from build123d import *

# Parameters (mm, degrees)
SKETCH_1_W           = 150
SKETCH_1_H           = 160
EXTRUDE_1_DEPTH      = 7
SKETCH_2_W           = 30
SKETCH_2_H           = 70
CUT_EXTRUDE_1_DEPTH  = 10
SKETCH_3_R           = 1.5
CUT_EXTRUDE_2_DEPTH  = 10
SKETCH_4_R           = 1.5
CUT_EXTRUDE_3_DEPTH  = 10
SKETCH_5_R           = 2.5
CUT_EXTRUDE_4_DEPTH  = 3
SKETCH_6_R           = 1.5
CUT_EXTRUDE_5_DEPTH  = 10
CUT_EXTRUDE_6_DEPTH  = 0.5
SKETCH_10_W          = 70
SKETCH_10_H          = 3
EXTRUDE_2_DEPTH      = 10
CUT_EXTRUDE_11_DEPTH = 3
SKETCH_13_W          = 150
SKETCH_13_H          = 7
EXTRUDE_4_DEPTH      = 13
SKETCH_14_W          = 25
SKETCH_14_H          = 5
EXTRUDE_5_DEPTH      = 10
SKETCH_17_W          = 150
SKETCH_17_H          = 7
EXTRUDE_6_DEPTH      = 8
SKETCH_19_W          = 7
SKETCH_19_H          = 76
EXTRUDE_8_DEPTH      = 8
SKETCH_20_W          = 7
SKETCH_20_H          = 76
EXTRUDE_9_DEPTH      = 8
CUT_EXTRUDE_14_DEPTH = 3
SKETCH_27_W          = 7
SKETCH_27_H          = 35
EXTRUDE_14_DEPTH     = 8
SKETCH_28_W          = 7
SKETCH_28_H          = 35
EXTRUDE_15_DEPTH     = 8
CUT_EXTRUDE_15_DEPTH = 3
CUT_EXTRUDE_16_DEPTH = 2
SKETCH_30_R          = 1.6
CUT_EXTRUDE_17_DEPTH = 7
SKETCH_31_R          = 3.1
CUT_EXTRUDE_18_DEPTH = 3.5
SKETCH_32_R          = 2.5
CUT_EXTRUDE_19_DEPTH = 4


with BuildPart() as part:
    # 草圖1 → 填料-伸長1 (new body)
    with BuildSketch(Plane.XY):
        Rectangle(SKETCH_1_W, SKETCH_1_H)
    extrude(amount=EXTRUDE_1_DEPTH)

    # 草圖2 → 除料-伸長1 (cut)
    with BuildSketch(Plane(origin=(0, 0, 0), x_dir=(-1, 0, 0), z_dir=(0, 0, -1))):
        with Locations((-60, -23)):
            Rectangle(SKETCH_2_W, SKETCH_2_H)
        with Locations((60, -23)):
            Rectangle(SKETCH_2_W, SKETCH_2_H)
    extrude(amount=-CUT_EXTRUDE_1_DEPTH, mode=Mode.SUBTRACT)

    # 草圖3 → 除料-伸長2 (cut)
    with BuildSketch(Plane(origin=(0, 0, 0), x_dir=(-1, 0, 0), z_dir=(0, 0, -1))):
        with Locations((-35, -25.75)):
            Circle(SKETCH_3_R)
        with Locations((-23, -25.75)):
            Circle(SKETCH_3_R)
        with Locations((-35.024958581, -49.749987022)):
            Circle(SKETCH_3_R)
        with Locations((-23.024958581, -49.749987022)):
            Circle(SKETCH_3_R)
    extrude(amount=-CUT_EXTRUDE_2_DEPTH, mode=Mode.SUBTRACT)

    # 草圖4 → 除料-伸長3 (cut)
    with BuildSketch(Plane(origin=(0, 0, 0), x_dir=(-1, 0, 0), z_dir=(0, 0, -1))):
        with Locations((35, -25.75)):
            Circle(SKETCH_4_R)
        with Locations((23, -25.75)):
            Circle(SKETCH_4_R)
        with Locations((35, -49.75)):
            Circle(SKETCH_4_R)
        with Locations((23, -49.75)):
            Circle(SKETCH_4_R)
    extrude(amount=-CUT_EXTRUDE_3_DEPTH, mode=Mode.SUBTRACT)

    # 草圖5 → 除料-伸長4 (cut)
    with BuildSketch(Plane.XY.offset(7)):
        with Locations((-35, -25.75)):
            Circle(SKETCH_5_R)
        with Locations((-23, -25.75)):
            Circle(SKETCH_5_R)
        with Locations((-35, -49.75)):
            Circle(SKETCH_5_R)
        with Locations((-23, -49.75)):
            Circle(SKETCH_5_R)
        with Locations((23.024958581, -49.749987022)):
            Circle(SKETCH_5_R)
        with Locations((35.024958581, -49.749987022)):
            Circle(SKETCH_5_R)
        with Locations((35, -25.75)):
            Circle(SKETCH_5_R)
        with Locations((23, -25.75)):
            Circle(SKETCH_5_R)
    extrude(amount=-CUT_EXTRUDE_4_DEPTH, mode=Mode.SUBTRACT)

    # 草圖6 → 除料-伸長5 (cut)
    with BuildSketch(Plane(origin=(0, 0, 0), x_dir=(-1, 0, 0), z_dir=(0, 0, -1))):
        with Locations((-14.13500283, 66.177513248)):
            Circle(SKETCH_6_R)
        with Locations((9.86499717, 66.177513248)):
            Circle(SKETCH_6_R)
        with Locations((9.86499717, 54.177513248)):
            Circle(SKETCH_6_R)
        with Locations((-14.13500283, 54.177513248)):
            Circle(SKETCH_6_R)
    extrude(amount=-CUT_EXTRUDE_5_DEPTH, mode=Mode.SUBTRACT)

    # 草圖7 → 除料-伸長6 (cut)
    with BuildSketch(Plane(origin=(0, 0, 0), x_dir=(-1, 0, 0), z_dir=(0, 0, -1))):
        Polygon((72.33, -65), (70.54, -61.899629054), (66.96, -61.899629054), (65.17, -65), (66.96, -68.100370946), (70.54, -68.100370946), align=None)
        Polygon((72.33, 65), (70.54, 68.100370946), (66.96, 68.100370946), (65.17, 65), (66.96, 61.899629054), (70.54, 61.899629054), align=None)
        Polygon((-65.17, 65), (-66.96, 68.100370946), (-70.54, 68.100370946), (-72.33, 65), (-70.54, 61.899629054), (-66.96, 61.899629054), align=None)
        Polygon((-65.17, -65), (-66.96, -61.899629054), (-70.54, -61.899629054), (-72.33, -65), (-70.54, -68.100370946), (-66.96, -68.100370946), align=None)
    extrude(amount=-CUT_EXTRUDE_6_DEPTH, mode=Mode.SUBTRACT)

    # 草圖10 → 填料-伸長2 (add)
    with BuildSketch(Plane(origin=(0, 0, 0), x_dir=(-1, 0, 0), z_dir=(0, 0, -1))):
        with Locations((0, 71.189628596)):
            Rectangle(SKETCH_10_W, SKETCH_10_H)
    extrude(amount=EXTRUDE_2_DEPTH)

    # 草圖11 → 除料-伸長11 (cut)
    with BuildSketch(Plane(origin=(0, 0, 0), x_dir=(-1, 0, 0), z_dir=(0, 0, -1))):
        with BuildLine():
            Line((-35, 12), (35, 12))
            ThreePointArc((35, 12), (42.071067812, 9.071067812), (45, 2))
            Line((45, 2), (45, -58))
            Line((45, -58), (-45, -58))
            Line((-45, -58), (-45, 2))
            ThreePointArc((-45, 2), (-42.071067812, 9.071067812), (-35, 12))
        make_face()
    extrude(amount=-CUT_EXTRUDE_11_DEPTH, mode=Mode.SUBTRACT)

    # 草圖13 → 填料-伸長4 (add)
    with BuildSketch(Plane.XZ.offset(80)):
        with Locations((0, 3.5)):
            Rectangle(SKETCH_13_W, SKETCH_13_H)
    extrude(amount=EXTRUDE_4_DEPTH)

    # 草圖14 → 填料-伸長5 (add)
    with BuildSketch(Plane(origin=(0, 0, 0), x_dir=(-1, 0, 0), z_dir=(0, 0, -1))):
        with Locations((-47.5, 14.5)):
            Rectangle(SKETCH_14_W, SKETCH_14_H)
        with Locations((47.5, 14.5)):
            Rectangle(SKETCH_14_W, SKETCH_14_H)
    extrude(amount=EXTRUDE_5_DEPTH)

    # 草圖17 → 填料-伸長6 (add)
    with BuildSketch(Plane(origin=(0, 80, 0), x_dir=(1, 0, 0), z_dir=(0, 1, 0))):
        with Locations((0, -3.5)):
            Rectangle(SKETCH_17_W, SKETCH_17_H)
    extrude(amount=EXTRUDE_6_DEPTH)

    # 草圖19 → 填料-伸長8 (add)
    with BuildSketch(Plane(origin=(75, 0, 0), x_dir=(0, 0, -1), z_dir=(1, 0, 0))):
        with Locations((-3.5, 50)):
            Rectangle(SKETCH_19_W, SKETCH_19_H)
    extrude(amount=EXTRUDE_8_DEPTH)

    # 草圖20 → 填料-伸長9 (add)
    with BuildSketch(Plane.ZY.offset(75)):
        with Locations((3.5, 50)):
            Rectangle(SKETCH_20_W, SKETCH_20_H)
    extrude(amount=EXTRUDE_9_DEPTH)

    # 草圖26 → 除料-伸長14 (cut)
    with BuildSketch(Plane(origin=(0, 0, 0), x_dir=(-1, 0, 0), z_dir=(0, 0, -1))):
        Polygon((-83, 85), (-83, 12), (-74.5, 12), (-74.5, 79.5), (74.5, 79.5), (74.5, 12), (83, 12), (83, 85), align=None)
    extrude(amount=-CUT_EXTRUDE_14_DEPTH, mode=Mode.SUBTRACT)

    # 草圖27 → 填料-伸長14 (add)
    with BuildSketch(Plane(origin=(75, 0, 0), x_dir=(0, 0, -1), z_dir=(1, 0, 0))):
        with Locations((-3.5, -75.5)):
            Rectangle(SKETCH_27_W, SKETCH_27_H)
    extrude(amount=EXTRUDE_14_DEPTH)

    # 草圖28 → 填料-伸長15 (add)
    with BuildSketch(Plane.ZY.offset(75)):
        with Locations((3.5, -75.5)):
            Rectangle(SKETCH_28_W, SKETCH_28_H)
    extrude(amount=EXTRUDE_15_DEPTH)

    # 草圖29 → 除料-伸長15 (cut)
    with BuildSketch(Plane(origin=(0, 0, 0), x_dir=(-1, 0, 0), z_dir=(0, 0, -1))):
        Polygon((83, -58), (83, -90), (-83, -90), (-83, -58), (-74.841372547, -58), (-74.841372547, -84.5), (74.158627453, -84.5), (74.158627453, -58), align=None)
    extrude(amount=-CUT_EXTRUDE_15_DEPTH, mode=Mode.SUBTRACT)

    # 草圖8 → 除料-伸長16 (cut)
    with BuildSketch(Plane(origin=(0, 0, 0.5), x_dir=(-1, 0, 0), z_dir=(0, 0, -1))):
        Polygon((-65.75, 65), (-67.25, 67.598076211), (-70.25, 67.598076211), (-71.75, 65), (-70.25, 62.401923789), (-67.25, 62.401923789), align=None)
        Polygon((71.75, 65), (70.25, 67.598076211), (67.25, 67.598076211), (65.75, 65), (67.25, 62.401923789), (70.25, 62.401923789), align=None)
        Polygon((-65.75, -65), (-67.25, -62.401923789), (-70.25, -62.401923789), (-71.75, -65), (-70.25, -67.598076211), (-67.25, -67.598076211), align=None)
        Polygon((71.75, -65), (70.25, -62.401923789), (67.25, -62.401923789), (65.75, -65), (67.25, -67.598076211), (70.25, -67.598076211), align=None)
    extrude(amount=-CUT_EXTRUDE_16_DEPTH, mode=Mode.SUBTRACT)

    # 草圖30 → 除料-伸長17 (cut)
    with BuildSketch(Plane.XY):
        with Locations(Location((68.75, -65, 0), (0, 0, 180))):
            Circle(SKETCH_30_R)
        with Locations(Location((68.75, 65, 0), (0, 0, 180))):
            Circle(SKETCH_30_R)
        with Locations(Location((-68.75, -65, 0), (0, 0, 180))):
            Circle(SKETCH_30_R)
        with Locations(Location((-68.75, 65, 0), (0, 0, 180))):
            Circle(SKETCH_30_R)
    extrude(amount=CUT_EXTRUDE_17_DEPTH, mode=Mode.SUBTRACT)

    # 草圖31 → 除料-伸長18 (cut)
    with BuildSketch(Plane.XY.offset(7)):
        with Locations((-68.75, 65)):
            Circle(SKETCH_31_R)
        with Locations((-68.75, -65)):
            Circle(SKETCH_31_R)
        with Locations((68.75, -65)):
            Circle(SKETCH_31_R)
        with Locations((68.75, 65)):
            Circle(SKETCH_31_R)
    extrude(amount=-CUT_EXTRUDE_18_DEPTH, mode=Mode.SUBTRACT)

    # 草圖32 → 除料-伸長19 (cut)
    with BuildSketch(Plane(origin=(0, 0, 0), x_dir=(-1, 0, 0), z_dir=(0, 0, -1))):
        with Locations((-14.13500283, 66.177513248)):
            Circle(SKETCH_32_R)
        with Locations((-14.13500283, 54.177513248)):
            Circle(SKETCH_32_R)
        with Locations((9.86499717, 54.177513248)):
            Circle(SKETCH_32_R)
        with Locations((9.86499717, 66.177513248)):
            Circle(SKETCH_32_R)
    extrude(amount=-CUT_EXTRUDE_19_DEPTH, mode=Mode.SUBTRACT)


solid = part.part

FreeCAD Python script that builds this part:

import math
import FreeCAD as App
import Part
import Sketcher

V = App.Vector
Q = App.Units.Quantity

doc = App.newDocument("Part")
body = doc.addObject("PartDesign::Body", "Body")

sketch1 = body.newObject("Sketcher::SketchObject", "Sketch")
sketch1.AttachmentSupport = (doc.getObject("XY_Plane"), [""])
sketch1.MapMode = "FlatFace"
sketch1.addGeometry([
    Part.LineSegment(V(-75, 80, 0), V(-75, -80, 0)),
    Part.LineSegment(V(-75, -80, 0), V(75, -80, 0)),
    Part.LineSegment(V(75, -80, 0), V(75, 80, 0)),
    Part.LineSegment(V(75, 80, 0), V(-75, 80, 0)),
], False)
sketch1.addConstraint([
    Sketcher.Constraint("Coincident", 0, 2, 1, 1),
    Sketcher.Constraint("Coincident", 1, 2, 2, 1),
    Sketcher.Constraint("Coincident", 2, 2, 3, 1),
    Sketcher.Constraint("Coincident", 3, 2, 0, 1),
    Sketcher.Constraint("Vertical", 0),
    Sketcher.Constraint("Horizontal", 1),
    Sketcher.Constraint("Vertical", 2),
    Sketcher.Constraint("Horizontal", 3),
    Sketcher.Constraint("Symmetric", 0, 2, 2, 2, -1, 1),
    Sketcher.Constraint("DistanceX", 1, 1, 1, 2, 150.0),
    Sketcher.Constraint("DistanceY", 0, 2, 0, 1, 160.0),
])
pad1 = body.newObject("PartDesign::Pad", "Pad")
pad1.Profile = sketch1
pad1.Length = 7

sketch2 = body.newObject("Sketcher::SketchObject", "Sketch001")
sketch2.AttachmentSupport = (doc.getObject("XY_Plane"), [""])
sketch2.MapMode = "FlatFace"
sketch2.addGeometry([
    Part.LineSegment(V(75, 12, 0), V(75, -58, 0)),
    Part.LineSegment(V(75, -58, 0), V(45, -58, 0)),
    Part.LineSegment(V(45, -58, 0), V(45, 12, 0)),
    Part.LineSegment(V(45, 12, 0), V(75, 12, 0)),
    Part.LineSegment(V(-45, 12, 0), V(-45, -58, 0)),
    Part.LineSegment(V(-45, -58, 0), V(-75, -58, 0)),
    Part.LineSegment(V(-75, -58, 0), V(-75, 12, 0)),
    Part.LineSegment(V(-75, 12, 0), V(-45, 12, 0)),
], False)
sketch2.addConstraint([
    Sketcher.Constraint("Coincident", 0, 2, 1, 1),
    Sketcher.Constraint("Coincident", 1, 2, 2, 1),
    Sketcher.Constraint("Coincident", 2, 2, 3, 1),
    Sketcher.Constraint("Coincident", 3, 2, 0, 1),
    Sketcher.Constraint("Coincident", 4, 2, 5, 1),
    Sketcher.Constraint("Coincident", 5, 2, 6, 1),
    Sketcher.Constraint("Coincident", 6, 2, 7, 1),
    Sketcher.Constraint("Coincident", 7, 2, 4, 1),
    Sketcher.Constraint("Vertical", 0),
    Sketcher.Constraint("Horizontal", 1),
    Sketcher.Constraint("Vertical", 2),
    Sketcher.Constraint("Horizontal", 3),
    Sketcher.Constraint("Vertical", 4),
    Sketcher.Constraint("Horizontal", 5),
    Sketcher.Constraint("Vertical", 6),
    Sketcher.Constraint("Horizontal", 7),
    Sketcher.Constraint("Symmetric", 1, 2, 4, 2, -2),
    Sketcher.Constraint("Symmetric", 3, 2, 6, 2, -2),
    Sketcher.Constraint("DistanceX", 1, 2, 1, 1, 30.0),
    Sketcher.Constraint("DistanceY", 0, 2, 0, 1, 70.0),
    Sketcher.Constraint("DistanceX", -1, 1, 0, 2, 75.0),
    Sketcher.Constraint("DistanceY", 0, 2, -1, 1, 58.0),
])
pocket1 = body.newObject("PartDesign::Pocket", "Pocket")
pocket1.Profile = sketch2
pocket1.Length = 10
pocket1.Reversed = True

sketch3 = body.newObject("Sketcher::SketchObject", "Sketch002")
sketch3.AttachmentSupport = (doc.getObject("XY_Plane"), [""])
sketch3.MapMode = "FlatFace"
sketch3.addGeometry([
    Part.Circle(V(35, -25.8, 0), V(0, 0, 1), 1.5),
    Part.Circle(V(23, -25.8, 0), V(0, 0, 1), 1.5),
    Part.Circle(V(35, -49.7, 0), V(0, 0, 1), 1.5),
    Part.Circle(V(23, -49.7, 0), V(0, 0, 1), 1.5),
], False)
sketch3.addConstraint([
    Sketcher.Constraint("Equal", 0, 1),
    Sketcher.Constraint("Equal", 1, 2),
    Sketcher.Constraint("Equal", 2, 3),
    Sketcher.Constraint("Horizontal", 0, 3, 1, 3),
    Sketcher.Constraint("Horizontal", 2, 3, 3, 3),
    Sketcher.Constraint("Diameter", 0, 3.0),
    Sketcher.Constraint("DistanceX", -1, 1, 0, 3, 35.0),
    Sketcher.Constraint("DistanceX", -1, 1, 1, 3, 23.0),
    Sketcher.Constraint("DistanceX", 3, 3, 2, 3, 12.0),
    Sketcher.Constraint("DistanceY", 0, 3, -1, 1, 25.75),
    Sketcher.Constraint("DistanceX", -1, 1, 2, 3, 35.024959),
    Sketcher.Constraint("DistanceY", 2, 3, -1, 1, 49.749987),
])
pocket2 = body.newObject("PartDesign::Pocket", "Pocket001")
pocket2.Profile = sketch3
pocket2.Length = 10
pocket2.Reversed = True

sketch4 = body.newObject("Sketcher::SketchObject", "Sketch003")
sketch4.AttachmentSupport = (doc.getObject("XY_Plane"), [""])
sketch4.MapMode = "FlatFace"
sketch4.addGeometry([
    Part.Circle(V(-35, -25.8, 0), V(0, 0, 1), 1.5),
    Part.Circle(V(-23, -25.8, 0), V(0, 0, 1), 1.5),
    Part.Circle(V(-35, -49.8, 0), V(0, 0, 1), 1.5),
    Part.Circle(V(-23, -49.8, 0), V(0, 0, 1), 1.5),
], False)
sketch4.addConstraint([
    Sketcher.Constraint("Equal", 0, 1),
    Sketcher.Constraint("Equal", 1, 2),
    Sketcher.Constraint("Equal", 2, 3),
    Sketcher.Constraint("Horizontal", 0, 3, 1, 3),
    Sketcher.Constraint("Horizontal", 2, 3, 3, 3),
    Sketcher.Constraint("Vertical", 0, 3, 2, 3),
    Sketcher.Constraint("Vertical", 1, 3, 3, 3),
    Sketcher.Constraint("Diameter", 0, 3.0),
    Sketcher.Constraint("DistanceX", 0, 3, -1, 1, 35.0),
    Sketcher.Constraint("DistanceX", 1, 3, -1, 1, 23.0),
    Sketcher.Constraint("DistanceY", 2, 3, 0, 3, 24.0),
    Sketcher.Constraint("DistanceY", 0, 3, -1, 1, 25.75),
])
pocket3 = body.newObject("PartDesign::Pocket", "Pocket002")
pocket3.Profile = sketch4
pocket3.Length = 10
pocket3.Reversed = True

sketch5 = body.newObject("Sketcher::SketchObject", "Sketch004")
sketch5.AttachmentSupport = (doc.getObject("XY_Plane"), [""])
sketch5.MapMode = "FlatFace"
sketch5.AttachmentOffset = App.Placement(V(0, 0, 7), App.Rotation())
sketch5.addGeometry([
    Part.Circle(V(-35, -25.8, 0), V(0, 0, 1), 2.5),
    Part.Circle(V(-23, -25.8, 0), V(0, 0, 1), 2.5),
    Part.Circle(V(-35, -49.8, 0), V(0, 0, 1), 2.5),
    Part.Circle(V(-23, -49.8, 0), V(0, 0, 1), 2.5),
    Part.Circle(V(23, -49.7, 0), V(0, 0, 1), 2.5),
    Part.Circle(V(35, -49.7, 0), V(0, 0, 1), 2.5),
    Part.Circle(V(35, -25.8, 0), V(0, 0, 1), 2.5),
    Part.Circle(V(23, -25.8, 0), V(0, 0, 1), 2.5),
], False)
sketch5.addConstraint([
    Sketcher.Constraint("Equal", 0, 1),
    Sketcher.Constraint("Equal", 1, 2),
    Sketcher.Constraint("Equal", 2, 3),
    Sketcher.Constraint("Equal", 3, 4),
    Sketcher.Constraint("Equal", 4, 5),
    Sketcher.Constraint("Equal", 5, 6),
    Sketcher.Constraint("Equal", 6, 7),
    Sketcher.Constraint("Symmetric", 0, 3, 6, 3, -2),
    Sketcher.Constraint("Symmetric", 1, 3, 7, 3, -2),
    Sketcher.Constraint("Horizontal", 0, 3, 1, 3),
    Sketcher.Constraint("Horizontal", 2, 3, 3, 3),
    Sketcher.Constraint("Horizontal", 4, 3, 5, 3),
    Sketcher.Constraint("Vertical", 0, 3, 2, 3),
    Sketcher.Constraint("Vertical", 1, 3, 3, 3),
    Sketcher.Constraint("Diameter", 0, 5.0),
    Sketcher.Constraint("DistanceX", 0, 3, -1, 1, 35.0),
    Sketcher.Constraint("DistanceX", 1, 3, -1, 1, 23.0),
    Sketcher.Constraint("DistanceY", 2, 3, 0, 3, 24.0),
    Sketcher.Constraint("DistanceX", 4, 3, 5, 3, 12.0),
    Sketcher.Constraint("DistanceY", 0, 3, -1, 1, 25.75),
    Sketcher.Constraint("DistanceX", -1, 1, 4, 3, 23.024959),
    Sketcher.Constraint("DistanceY", 4, 3, -1, 1, 49.749987),
])
pocket4 = body.newObject("PartDesign::Pocket", "Pocket003")
pocket4.Profile = sketch5
pocket4.Length = 3

sketch6 = body.newObject("Sketcher::SketchObject", "Sketch005")
sketch6.AttachmentSupport = (doc.getObject("XY_Plane"), [""])
sketch6.MapMode = "FlatFace"
sketch6.addGeometry([
    Part.Circle(V(14.1, 66.2, 0), V(0, 0, 1), 1.5),
    Part.Circle(V(-9.9, 66.2, 0), V(0, 0, 1), 1.5),
    Part.Circle(V(-9.9, 54.2, 0), V(0, 0, 1), 1.5),
    Part.Circle(V(14.1, 54.2, 0), V(0, 0, 1), 1.5),
], False)
sketch6.addConstraint([
    Sketcher.Constraint("Equal", 0, 1),
    Sketcher.Constraint("Equal", 1, 2),
    Sketcher.Constraint("Equal", 2, 3),
    Sketcher.Constraint("Horizontal", 0, 3, 1, 3),
    Sketcher.Constraint("Horizontal", 2, 3, 3, 3),
    Sketcher.Constraint("Vertical", 1, 3, 2, 3),
    Sketcher.Constraint("Vertical", 0, 3, 3, 3),
    Sketcher.Constraint("Diameter", 0, 3.0),
    Sketcher.Constraint("DistanceX", 1, 3, 0, 3, 24.0),
    Sketcher.Constraint("DistanceY", 2, 3, 1, 3, 12.0),
    Sketcher.Constraint("DistanceX", -1, 1, 0, 3, 14.135003),
    Sketcher.Constraint("DistanceY", -1, 1, 0, 3, 66.177513),
])
pocket5 = body.newObject("PartDesign::Pocket", "Pocket004")
pocket5.Profile = sketch6
pocket5.Length = 10
pocket5.Reversed = True

sketch7 = body.newObject("Sketcher::SketchObject", "Sketch006")
sketch7.AttachmentSupport = (doc.getObject("XY_Plane"), [""])
sketch7.MapMode = "FlatFace"
sketch7.addGeometry([
    Part.LineSegment(V(-72.3, -65, 0), V(-70.5, -61.9, 0)),
    Part.LineSegment(V(-70.5, -61.9, 0), V(-67, -61.9, 0)),
    Part.LineSegment(V(-67, -61.9, 0), V(-65.2, -65, 0)),
    Part.LineSegment(V(-65.2, -65, 0), V(-67, -68.1, 0)),
    Part.LineSegment(V(-67, -68.1, 0), V(-70.5, -68.1, 0)),
    Part.LineSegment(V(-70.5, -68.1, 0), V(-72.3, -65, 0)),
    Part.LineSegment(V(-72.3, 65, 0), V(-70.5, 68.1, 0)),
    Part.LineSegment(V(-70.5, 68.1, 0), V(-67, 68.1, 0)),
    Part.LineSegment(V(-67, 68.1, 0), V(-65.2, 65, 0)),
    Part.LineSegment(V(-65.2, 65, 0), V(-67, 61.9, 0)),
    Part.LineSegment(V(-67, 61.9, 0), V(-70.5, 61.9, 0)),
    Part.LineSegment(V(-70.5, 61.9, 0), V(-72.3, 65, 0)),
    Part.LineSegment(V(65.2, 65, 0), V(67, 68.1, 0)),
    Part.LineSegment(V(67, 68.1, 0), V(70.5, 68.1, 0)),
    Part.LineSegment(V(70.5, 68.1, 0), V(72.3, 65, 0)),
    Part.LineSegment(V(72.3, 65, 0), V(70.5, 61.9, 0)),
    Part.LineSegment(V(70.5, 61.9, 0), V(67, 61.9, 0)),
    Part.LineSegment(V(67, 61.9, 0), V(65.2, 65, 0)),
    Part.LineSegment(V(65.2, -65, 0), V(67, -61.9, 0)),
    Part.LineSegment(V(67, -61.9, 0), V(70.5, -61.9, 0)),
    Part.LineSegment(V(70.5, -61.9, 0), V(72.3, -65, 0)),
    Part.LineSegment(V(72.3, -65, 0), V(70.5, -68.1, 0)),
    Part.LineSegment(V(70.5, -68.1, 0), V(67, -68.1, 0)),
    Part.LineSegment(V(67, -68.1, 0), V(65.2, -65, 0)),
], False)
sketch7.addConstraint([
    Sketcher.Constraint("Coincident", 0, 2, 1, 1),
    Sketcher.Constraint("Coincident", 1, 2, 2, 1),
    Sketcher.Constraint("Coincident", 2, 2, 3, 1),
    Sketcher.Constraint("Coincident", 3, 2, 4, 1),
    Sketcher.Constraint("Coincident", 4, 2, 5, 1),
    Sketcher.Constraint("Coincident", 5, 2, 0, 1),
    Sketcher.Constraint("Coincident", 6, 2, 7, 1),
    Sketcher.Constraint("Coincident", 7, 2, 8, 1),
    Sketcher.Constraint("Coincident", 8, 2, 9, 1),
    Sketcher.Constraint("Coincident", 9, 2, 10, 1),
    Sketcher.Constraint("Coincident", 10, 2, 11, 1),
    Sketcher.Constraint("Coincident", 11, 2, 6, 1),
    Sketcher.Constraint("Coincident", 12, 2, 13, 1),
    Sketcher.Constraint("Coincident", 13, 2, 14, 1),
    Sketcher.Constraint("Coincident", 14, 2, 15, 1),
    Sketcher.Constraint("Coincident", 15, 2, 16, 1),
    Sketcher.Constraint("Coincident", 16, 2, 17, 1),
    Sketcher.Constraint("Coincident", 17, 2, 12, 1),
    Sketcher.Constraint("Coincident", 18, 2, 19, 1),
    Sketcher.Constraint("Coincident", 19, 2, 20, 1),
    Sketcher.Constraint("Coincident", 20, 2, 21, 1),
    Sketcher.Constraint("Coincident", 21, 2, 22, 1),
    Sketcher.Constraint("Coincident", 22, 2, 23, 1),
    Sketcher.Constraint("Coincident", 23, 2, 18, 1),
    Sketcher.Constraint("Horizontal", 1),
    Sketcher.Constraint("Horizontal", 4),
    Sketcher.Constraint("Horizontal", 7),
    Sketcher.Constraint("Horizontal", 10),
    Sketcher.Constraint("Horizontal", 13),
    Sketcher.Constraint("Horizontal", 16),
    Sketcher.Constraint("Horizontal", 19),
    Sketcher.Constraint("Horizontal", 22),
    Sketcher.Constraint("Symmetric", 3, 2, 12, 2, -1, 1),
    Sketcher.Constraint("Symmetric", 5, 2, 14, 2, -1, 1),
    Sketcher.Constraint("Symmetric", 0, 2, 15, 2, -1, 1),
    Sketcher.Constraint("Symmetric", 2, 2, 17, 2, -1, 1),
    Sketcher.Constraint("Symmetric", 9, 2, 18, 2, -1, 1),
    Sketcher.Constraint("Symmetric", 11, 2, 20, 2, -1, 1),
    Sketcher.Constraint("Symmetric", 6, 2, 21, 2, -1, 1),
    Sketcher.Constraint("Symmetric", 8, 2, 23, 2, -1, 1),
    Sketcher.Constraint("Symmetric", 7, 2, 12, 2, -2),
    Sketcher.Constraint("Symmetric", 11, 2, 14, 2, -2),
    Sketcher.Constraint("Symmetric", 10, 2, 15, 2, -2),
    Sketcher.Constraint("Symmetric", 8, 2, 17, 2, -2),
    Sketcher.Constraint("Parallel", 0, 3),
    Sketcher.Constraint("Parallel", 2, 5),
    Sketcher.Constraint("Parallel", 3, 6),
    Sketcher.Constraint("Parallel", 5, 8),
    Sketcher.Constraint("Parallel", 6, 9),
    Sketcher.Constraint("Parallel", 11, 14),
    Sketcher.Constraint("Parallel", 14, 17),
    Sketcher.Constraint("Parallel", 17, 20),
    Sketcher.Constraint("Parallel", 20, 23),
    Sketcher.Constraint("Horizontal", 2, 2, 5, 2),
    Sketcher.Constraint("Vertical", 1, 2, 3, 2),
    Sketcher.Constraint("Angle", 0, Q("60 deg")),
    Sketcher.Constraint("DistanceY", 2, 2, -1, 1, 65.0),
    Sketcher.Constraint("DistanceX", 1, 1, 1, 2, 3.58),
    Sketcher.Constraint("DistanceX", 6, 2, 12, 2, 137.5),
    Sketcher.Constraint("Distance", 0, 3.58),
])
pocket6 = body.newObject("PartDesign::Pocket", "Pocket005")
pocket6.Profile = sketch7
pocket6.Length = 0.5
pocket6.Reversed = True

sketch8 = body.newObject("Sketcher::SketchObject", "Sketch007")
sketch8.AttachmentSupport = (doc.getObject("XY_Plane"), [""])
sketch8.MapMode = "FlatFace"
sketch8.addGeometry([
    Part.LineSegment(V(35, 72.7, 0), V(35, 69.7, 0)),
    Part.LineSegment(V(35, 69.7, 0), V(-35, 69.7, 0)),
    Part.LineSegment(V(-35, 69.7, 0), V(-35, 72.7, 0)),
    Part.LineSegment(V(-35, 72.7, 0), V(35, 72.7, 0)),
], False)
sketch8.addConstraint([
    Sketcher.Constraint("Coincident", 0, 2, 1, 1),
    Sketcher.Constraint("Coincident", 1, 2, 2, 1),
    Sketcher.Constraint("Coincident", 2, 2, 3, 1),
    Sketcher.Constraint("Coincident", 3, 2, 0, 1),
    Sketcher.Constraint("Vertical", 0),
    Sketcher.Constraint("Horizontal", 1),
    Sketcher.Constraint("Vertical", 2),
    Sketcher.Constraint("Horizontal", 3),
    Sketcher.Constraint("DistanceX", 1, 2, 1, 1, 70.0),
    Sketcher.Constraint("DistanceY", 0, 2, 0, 1, 3.0),
    Sketcher.Constraint("DistanceX", -1, 1, 0, 2, 35.0),
    Sketcher.Constraint("DistanceY", -1, 1, 0, 2, 69.689629),
])
pad2 = body.newObject("PartDesign::Pad", "Pad001")
pad2.Profile = sketch8
pad2.Length = 10
pad2.Reversed = True

sketch9 = body.newObject("Sketcher::SketchObject", "Sketch008")
sketch9.AttachmentSupport = (doc.getObject("XY_Plane"), [""])
sketch9.MapMode = "FlatFace"
sketch9.addGeometry([
    Part.LineSegment(V(-35, 12, 0), V(35, 12, 0)),
    Part.ArcOfCircle(Part.Circle(V(35, 2, 0), V(0, 0, 1), 10), math.radians(0), math.radians(90)),
    Part.LineSegment(V(45, 2, 0), V(45, -58, 0)),
    Part.LineSegment(V(45, -58, 0), V(-45, -58, 0)),
    Part.LineSegment(V(-45, -58, 0), V(-45, 2, 0)),
    Part.ArcOfCircle(Part.Circle(V(-35, 2, 0), V(0, 0, 1), 10), math.radians(90), math.radians(180)),
], False)
sketch9.addConstraint([
    Sketcher.Constraint("Tangent", 0, 2, 1, 2),
    Sketcher.Constraint("Tangent", 1, 1, 2, 1),
    Sketcher.Constraint("Coincident", 2, 2, 3, 1),
    Sketcher.Constraint("Coincident", 3, 2, 4, 1),
    Sketcher.Constraint("Tangent", 4, 2, 5, 2),
    Sketcher.Constraint("Tangent", 5, 1, 0, 1),
    Sketcher.Constraint("Horizontal", 0),
    Sketcher.Constraint("Vertical", 2),
    Sketcher.Constraint("Horizontal", 3),
    Sketcher.Constraint("Vertical", 4),
    Sketcher.Constraint("Equal", 1, 5),
    Sketcher.Constraint("Radius", 1, 10.0),
    Sketcher.Constraint("DistanceX", 0, 1, 0, 2, 70.0),
    Sketcher.Constraint("DistanceY", 2, 2, 2, 1, 60.0),
    Sketcher.Constraint("DistanceX", -1, 1, 1, 3, 35.0),
    Sketcher.Constraint("DistanceY", -1, 1, 1, 3, 2.0),
])
pocket7 = body.newObject("PartDesign::Pocket", "Pocket006")
pocket7.Profile = sketch9
pocket7.Length = 3
pocket7.Reversed = True

sketch10 = body.newObject("Sketcher::SketchObject", "Sketch009")
sketch10.AttachmentSupport = (doc.getObject("XZ_Plane"), [""])
sketch10.MapMode = "FlatFace"
sketch10.AttachmentOffset = App.Placement(V(0, 0, 80), App.Rotation())
sketch10.addGeometry([
    Part.LineSegment(V(-75, 7, 0), V(-75, 0, 0)),
    Part.LineSegment(V(-75, 0, 0), V(75, 0, 0)),
    Part.LineSegment(V(75, 0, 0), V(75, 7, 0)),
    Part.LineSegment(V(75, 7, 0), V(-75, 7, 0)),
], False)
sketch10.addConstraint([
    Sketcher.Constraint("Coincident", 0, 2, 1, 1),
    Sketcher.Constraint("Coincident", 1, 2, 2, 1),
    Sketcher.Constraint("Coincident", 2, 2, 3, 1),
    Sketcher.Constraint("Coincident", 3, 2, 0, 1),
    Sketcher.Constraint("Vertical", 0),
    Sketcher.Constraint("Horizontal", 1),
    Sketcher.Constraint("Vertical", 2),
    Sketcher.Constraint("Horizontal", 3),
    Sketcher.Constraint("Symmetric", 0, 2, 1, 2, -1, 1),
    Sketcher.Constraint("DistanceX", 1, 1, 1, 2, 150.0),
    Sketcher.Constraint("DistanceY", 0, 2, 0, 1, 7.0),
])
pad3 = body.newObject("PartDesign::Pad", "Pad002")
pad3.Profile = sketch10
pad3.Length = 13

sketch11 = body.newObject("Sketcher::SketchObject", "Sketch010")
sketch11.AttachmentSupport = (doc.getObject("XY_Plane"), [""])
sketch11.MapMode = "FlatFace"
sketch11.addGeometry([
    Part.LineSegment(V(60, 17, 0), V(60, 12, 0)),
    Part.LineSegment(V(60, 12, 0), V(35, 12, 0)),
    Part.LineSegment(V(35, 12, 0), V(35, 17, 0)),
    Part.LineSegment(V(35, 17, 0), V(60, 17, 0)),
    Part.LineSegment(V(-35, 17, 0), V(-35, 12, 0)),
    Part.LineSegment(V(-35, 12, 0), V(-60, 12, 0)),
    Part.LineSegment(V(-60, 12, 0), V(-60, 17, 0)),
    Part.LineSegment(V(-60, 17, 0), V(-35, 17, 0)),
], False)
sketch11.addConstraint([
    Sketcher.Constraint("Coincident", 0, 2, 1, 1),
    Sketcher.Constraint("Coincident", 1, 2, 2, 1),
    Sketcher.Constraint("Coincident", 2, 2, 3, 1),
    Sketcher.Constraint("Coincident", 3, 2, 0, 1),
    Sketcher.Constraint("Coincident", 4, 2, 5, 1),
    Sketcher.Constraint("Coincident", 5, 2, 6, 1),
    Sketcher.Constraint("Coincident", 6, 2, 7, 1),
    Sketcher.Constraint("Coincident", 7, 2, 4, 1),
    Sketcher.Constraint("Vertical", 0),
    Sketcher.Constraint("Horizontal", 1),
    Sketcher.Constraint("Vertical", 2),
    Sketcher.Constraint("Horizontal", 3),
    Sketcher.Constraint("Vertical", 4),
    Sketcher.Constraint("Horizontal", 5),
    Sketcher.Constraint("Vertical", 6),
    Sketcher.Constraint("Horizontal", 7),
    Sketcher.Constraint("Symmetric", 1, 2, 4, 2, -2),
    Sketcher.Constraint("Symmetric", 3, 2, 6, 2, -2),
    Sketcher.Constraint("DistanceX", 1, 2, 1, 1, 25.0),
    Sketcher.Constraint("DistanceY", 0, 2, 0, 1, 5.0),
    Sketcher.Constraint("DistanceX", -1, 1, 0, 2, 60.0),
    Sketcher.Constraint("DistanceY", -1, 1, 0, 2, 12.0),
])
pad4 = body.newObject("PartDesign::Pad", "Pad003")
pad4.Profile = sketch11
pad4.Length = 10
pad4.Reversed = True

sketch12 = body.newObject("Sketcher::SketchObject", "Sketch011")
sketch12.AttachmentSupport = (doc.getObject("XZ_Plane"), [""])
sketch12.MapMode = "FlatFace"
sketch12.AttachmentOffset = App.Placement(V(0, 0, -80), App.Rotation())
sketch12.addGeometry([
    Part.LineSegment(V(-75, 0, 0), V(-75, 7, 0)),
    Part.LineSegment(V(-75, 7, 0), V(75, 7, 0)),
    Part.LineSegment(V(75, 7, 0), V(75, 0, 0)),
    Part.LineSegment(V(75, 0, 0), V(-75, 0, 0)),
], False)
sketch12.addConstraint([
    Sketcher.Constraint("Coincident", 0, 2, 1, 1),
    Sketcher.Constraint("Coincident", 1, 2, 2, 1),
    Sketcher.Constraint("Coincident", 2, 2, 3, 1),
    Sketcher.Constraint("Coincident", 3, 2, 0, 1),
    Sketcher.Constraint("Vertical", 0),
    Sketcher.Constraint("Horizontal", 1),
    Sketcher.Constraint("Vertical", 2),
    Sketcher.Constraint("Horizontal", 3),
    Sketcher.Constraint("Symmetric", 2, 2, 3, 2, -1, 1),
    Sketcher.Constraint("DistanceX", 1, 1, 1, 2, 150.0),
    Sketcher.Constraint("DistanceY", 0, 1, 0, 2, 7.0),
])
pad5 = body.newObject("PartDesign::Pad", "Pad004")
pad5.Profile = sketch12
pad5.Length = 8
pad5.Reversed = True

sketch13 = body.newObject("Sketcher::SketchObject", "Sketch012")
sketch13.AttachmentSupport = (doc.getObject("YZ_Plane"), [""])
sketch13.MapMode = "FlatFace"
sketch13.AttachmentOffset = App.Placement(V(0, 0, 75), App.Rotation())
sketch13.addGeometry([
    Part.LineSegment(V(88, 7, 0), V(12, 7, 0)),
    Part.LineSegment(V(12, 7, 0), V(12, 0, 0)),
    Part.LineSegment(V(12, 0, 0), V(88, 0, 0)),
    Part.LineSegment(V(88, 0, 0), V(88, 7, 0)),
], False)
sketch13.addConstraint([
    Sketcher.Constraint("Coincident", 0, 2, 1, 1),
    Sketcher.Constraint("Coincident", 1, 2, 2, 1),
    Sketcher.Constraint("Coincident", 2, 2, 3, 1),
    Sketcher.Constraint("Coincident", 3, 2, 0, 1),
    Sketcher.Constraint("Horizontal", 0),
    Sketcher.Constraint("Vertical", 1),
    Sketcher.Constraint("Horizontal", 2),
    Sketcher.Constraint("Vertical", 3),
    Sketcher.Constraint("PointOnObject", 1, 2, -1),
    Sketcher.Constraint("DistanceX", 0, 2, 0, 1, 76.0),
    Sketcher.Constraint("DistanceY", 1, 2, 1, 1, 7.0),
    Sketcher.Constraint("DistanceX", -1, 1, 0, 2, 12.0),
])
pad6 = body.newObject("PartDesign::Pad", "Pad005")
pad6.Profile = sketch13
pad6.Length = 8

sketch14 = body.newObject("Sketcher::SketchObject", "Sketch013")
sketch14.AttachmentSupport = (doc.getObject("YZ_Plane"), [""])
sketch14.MapMode = "FlatFace"
sketch14.AttachmentOffset = App.Placement(V(0, 0, -75), App.Rotation())
sketch14.addGeometry([
    Part.LineSegment(V(88, 0, 0), V(12, 0, 0)),
    Part.LineSegment(V(12, 0, 0), V(12, 7, 0)),
    Part.LineSegment(V(12, 7, 0), V(88, 7, 0)),
    Part.LineSegment(V(88, 7, 0), V(88, 0, 0)),
], False)
sketch14.addConstraint([
    Sketcher.Constraint("Coincident", 0, 2, 1, 1),
    Sketcher.Constraint("Coincident", 1, 2, 2, 1),
    Sketcher.Constraint("Coincident", 2, 2, 3, 1),
    Sketcher.Constraint("Coincident", 3, 2, 0, 1),
    Sketcher.Constraint("Horizontal", 0),
    Sketcher.Constraint("Vertical", 1),
    Sketcher.Constraint("Horizontal", 2),
    Sketcher.Constraint("Vertical", 3),
    Sketcher.Constraint("PointOnObject", 0, 2, -1),
    Sketcher.Constraint("DistanceX", 0, 2, 0, 1, 76.0),
    Sketcher.Constraint("DistanceY", 1, 1, 1, 2, 7.0),
    Sketcher.Constraint("DistanceX", -1, 1, 0, 2, 12.0),
])
pad7 = body.newObject("PartDesign::Pad", "Pad006")
pad7.Profile = sketch14
pad7.Length = 8
pad7.Reversed = True

sketch15 = body.newObject("Sketcher::SketchObject", "Sketch014")
sketch15.AttachmentSupport = (doc.getObject("XY_Plane"), [""])
sketch15.MapMode = "FlatFace"
sketch15.addGeometry([
    Part.LineSegment(V(83, 85, 0), V(83, 12, 0)),
    Part.LineSegment(V(83, 12, 0), V(74, 12, 0)),
    Part.LineSegment(V(74, 12, 0), V(74, 80, 0)),
    Part.LineSegment(V(74, 80, 0), V(-74, 80, 0)),
    Part.LineSegment(V(-74, 80, 0), V(-74, 12, 0)),
    Part.LineSegment(V(-74, 12, 0), V(-83, 12, 0)),
    Part.LineSegment(V(-83, 12, 0), V(-83, 85, 0)),
    Part.LineSegment(V(-83, 85, 0), V(83, 85, 0)),
], False)
sketch15.addConstraint([
    Sketcher.Constraint("Coincident", 0, 2, 1, 1),
    Sketcher.Constraint("Coincident", 1, 2, 2, 1),
    Sketcher.Constraint("Coincident", 2, 2, 3, 1),
    Sketcher.Constraint("Coincident", 3, 2, 4, 1),
    Sketcher.Constraint("Coincident", 4, 2, 5, 1),
    Sketcher.Constraint("Coincident", 5, 2, 6, 1),
    Sketcher.Constraint("Coincident", 6, 2, 7, 1),
    Sketcher.Constraint("Coincident", 7, 2, 0, 1),
    Sketcher.Constraint("Vertical", 0),
    Sketcher.Constraint("Horizontal", 1),
    Sketcher.Constraint("Vertical", 2),
    Sketcher.Constraint("Horizontal", 3),
    Sketcher.Constraint("Vertical", 4),
    Sketcher.Constraint("Horizontal", 5),
    Sketcher.Constraint("Vertical", 6),
    Sketcher.Constraint("Horizontal", 7),
    Sketcher.Constraint("Symmetric", 1, 2, 4, 2, -2),
    Sketcher.Constraint("Equal", 1, 5),
    Sketcher.Constraint("DistanceX", 3, 2, 3, 1, 149.0),
    Sketcher.Constraint("DistanceX", 7, 1, 7, 2, 166.0),
    Sketcher.Constraint("DistanceY", 0, 2, 0, 1, 73.0),
    Sketcher.Constraint("DistanceY", 2, 1, 2, 2, 67.5),
    Sketcher.Constraint("DistanceY", -1, 1, 0, 2, 12.0),
])
pocket8 = body.newObject("PartDesign::Pocket", "Pocket007")
pocket8.Profile = sketch15
pocket8.Length = 3
pocket8.Reversed = True

sketch16 = body.newObject("Sketcher::SketchObject", "Sketch015")
sketch16.AttachmentSupport = (doc.getObject("YZ_Plane"), [""])
sketch16.MapMode = "FlatFace"
sketch16.AttachmentOffset = App.Placement(V(0, 0, 75), App.Rotation())
sketch16.addGeometry([
    Part.LineSegment(V(-58, 7, 0), V(-93, 7, 0)),
    Part.LineSegment(V(-93, 7, 0), V(-93, 0, 0)),
    Part.LineSegment(V(-93, 0, 0), V(-58, 0, 0)),
    Part.LineSegment(V(-58, 0, 0), V(-58, 7, 0)),
], False)
sketch16.addConstraint([
    Sketcher.Constraint("Coincident", 0, 2, 1, 1),
    Sketcher.Constraint("Coincident", 1, 2, 2, 1),
    Sketcher.Constraint("Coincident", 2, 2, 3, 1),
    Sketcher.Constraint("Coincident", 3, 2, 0, 1),
    Sketcher.Constraint("Horizontal", 0),
    Sketcher.Constraint("Vertical", 1),
    Sketcher.Constraint("Horizontal", 2),
    Sketcher.Constraint("Vertical", 3),
    Sketcher.Constraint("PointOnObject", 1, 2, -1),
    Sketcher.Constraint("DistanceX", 0, 2, 0, 1, 35.0),
    Sketcher.Constraint("DistanceY", 1, 2, 1, 1, 7.0),
    Sketcher.Constraint("DistanceX", 0, 2, -1, 1, 93.0),
])
pad8 = body.newObject("PartDesign::Pad", "Pad007")
pad8.Profile = sketch16
pad8.Length = 8

sketch17 = body.newObject("Sketcher::SketchObject", "Sketch016")
sketch17.AttachmentSupport = (doc.getObject("YZ_Plane"), [""])
sketch17.MapMode = "FlatFace"
sketch17.AttachmentOffset = App.Placement(V(0, 0, -75), App.Rotation())
sketch17.addGeometry([
    Part.LineSegment(V(-58, 0, 0), V(-93, 0, 0)),
    Part.LineSegment(V(-93, 0, 0), V(-93, 7, 0)),
    Part.LineSegment(V(-93, 7, 0), V(-58, 7, 0)),
    Part.LineSegment(V(-58, 7, 0), V(-58, 0, 0)),
], False)
sketch17.addConstraint([
    Sketcher.Constraint("Coincident", 0, 2, 1, 1),
    Sketcher.Constraint("Coincident", 1, 2, 2, 1),
    Sketcher.Constraint("Coincident", 2, 2, 3, 1),
    Sketcher.Constraint("Coincident", 3, 2, 0, 1),
    Sketcher.Constraint("Horizontal", 0),
    Sketcher.Constraint("Vertical", 1),
    Sketcher.Constraint("Horizontal", 2),
    Sketcher.Constraint("Vertical", 3),
    Sketcher.Constraint("PointOnObject", 0, 2, -1),
    Sketcher.Constraint("DistanceX", 0, 2, 0, 1, 35.0),
    Sketcher.Constraint("DistanceY", 1, 1, 1, 2, 7.0),
    Sketcher.Constraint("DistanceX", 0, 2, -1, 1, 93.0),
])
pad9 = body.newObject("PartDesign::Pad", "Pad008")
pad9.Profile = sketch17
pad9.Length = 8
pad9.Reversed = True

sketch18 = body.newObject("Sketcher::SketchObject", "Sketch017")
sketch18.AttachmentSupport = (doc.getObject("XY_Plane"), [""])
sketch18.MapMode = "FlatFace"
sketch18.addGeometry([
    Part.LineSegment(V(-83, -90, 0), V(-83, -58, 0)),
    Part.LineSegment(V(-83, -58, 0), V(-74, -58, 0)),
    Part.LineSegment(V(-74, -58, 0), V(-74, -84, 0)),
    Part.LineSegment(V(-74, -84, 0), V(75, -84, 0)),
    Part.LineSegment(V(75, -84, 0), V(75, -58, 0)),
    Part.LineSegment(V(75, -58, 0), V(83, -58, 0)),
    Part.LineSegment(V(83, -58, 0), V(83, -90, 0)),
    Part.LineSegment(V(83, -90, 0), V(-83, -90, 0)),
], False)
sketch18.addConstraint([
    Sketcher.Constraint("Coincident", 0, 2, 1, 1),
    Sketcher.Constraint("Coincident", 1, 2, 2, 1),
    Sketcher.Constraint("Coincident", 2, 2, 3, 1),
    Sketcher.Constraint("Coincident", 3, 2, 4, 1),
    Sketcher.Constraint("Coincident", 4, 2, 5, 1),
    Sketcher.Constraint("Coincident", 5, 2, 6, 1),
    Sketcher.Constraint("Coincident", 6, 2, 7, 1),
    Sketcher.Constraint("Coincident", 7, 2, 0, 1),
    Sketcher.Constraint("Vertical", 0),
    Sketcher.Constraint("Horizontal", 1),
    Sketcher.Constraint("Vertical", 2),
    Sketcher.Constraint("Horizontal", 3),
    Sketcher.Constraint("Vertical", 4),
    Sketcher.Constraint("Horizontal", 5),
    Sketcher.Constraint("Vertical", 6),
    Sketcher.Constraint("Horizontal", 7),
    Sketcher.Constraint("Symmetric", 0, 2, 5, 2, -2),
    Sketcher.Constraint("DistanceX", 3, 1, 3, 2, 149.0),
    Sketcher.Constraint("DistanceX", 7, 2, 7, 1, 166.0),
    Sketcher.Constraint("DistanceY", 0, 1, 0, 2, 32.0),
    Sketcher.Constraint("DistanceY", 2, 2, 2, 1, 26.5),
    Sketcher.Constraint("DistanceY", 0, 2, -1, 1, 58.0),
    Sketcher.Constraint("DistanceX", 1, 1, 1, 2, 8.841373),
])
pocket9 = body.newObject("PartDesign::Pocket", "Pocket008")
pocket9.Profile = sketch18
pocket9.Length = 3
pocket9.Reversed = True

sketch19 = body.newObject("Sketcher::SketchObject", "Sketch018")
sketch19.AttachmentSupport = (doc.getObject("XY_Plane"), [""])
sketch19.MapMode = "FlatFace"
sketch19.AttachmentOffset = App.Placement(V(0, 0, 0.5), App.Rotation())
sketch19.addGeometry([
    Part.LineSegment(V(65.8, 65, 0), V(67.2, 67.6, 0)),
    Part.LineSegment(V(67.2, 67.6, 0), V(70.2, 67.6, 0)),
    Part.LineSegment(V(70.2, 67.6, 0), V(71.8, 65, 0)),
    Part.LineSegment(V(71.8, 65, 0), V(70.2, 62.4, 0)),
    Part.LineSegment(V(70.2, 62.4, 0), V(67.2, 62.4, 0)),
    Part.LineSegment(V(67.2, 62.4, 0), V(65.8, 65, 0)),
    Part.LineSegment(V(-71.8, 65, 0), V(-70.2, 67.6, 0)),
    Part.LineSegment(V(-70.2, 67.6, 0), V(-67.2, 67.6, 0)),
    Part.LineSegment(V(-67.2, 67.6, 0), V(-65.8, 65, 0)),
    Part.LineSegment(V(-65.8, 65, 0), V(-67.2, 62.4, 0)),
    Part.LineSegment(V(-67.2, 62.4, 0), V(-70.2, 62.4, 0)),
    Part.LineSegment(V(-70.2, 62.4, 0), V(-71.8, 65, 0)),
    Part.LineSegment(V(65.8, -65, 0), V(67.2, -62.4, 0)),
    Part.LineSegment(V(67.2, -62.4, 0), V(70.2, -62.4, 0)),
    Part.LineSegment(V(70.2, -62.4, 0), V(71.8, -65, 0)),
    Part.LineSegment(V(71.8, -65, 0), V(70.2, -67.6, 0)),
    Part.LineSegment(V(70.2, -67.6, 0), V(67.2, -67.6, 0)),
    Part.LineSegment(V(67.2, -67.6, 0), V(65.8, -65, 0)),
    Part.LineSegment(V(-71.8, -65, 0), V(-70.2, -62.4, 0)),
    Part.LineSegment(V(-70.2, -62.4, 0), V(-67.2, -62.4, 0)),
    Part.LineSegment(V(-67.2, -62.4, 0), V(-65.8, -65, 0)),
    Part.LineSegment(V(-65.8, -65, 0), V(-67.2, -67.6, 0)),
    Part.LineSegment(V(-67.2, -67.6, 0), V(-70.2, -67.6, 0)),
    Part.LineSegment(V(-70.2, -67.6, 0), V(-71.8, -65, 0)),
], False)
sketch19.addConstraint([
    Sketcher.Constraint("Coincident", 0, 2, 1, 1),
    Sketcher.Constraint("Coincident", 1, 2, 2, 1),
    Sketcher.Constraint("Coincident", 2, 2, 3, 1),
    Sketcher.Constraint("Coincident", 3, 2, 4, 1),
    Sketcher.Constraint("Coincident", 4, 2, 5, 1),
    Sketcher.Constraint("Coincident", 5, 2, 0, 1),
    Sketcher.Constraint("Coincident", 6, 2, 7, 1),
    Sketcher.Constraint("Coincident", 7, 2, 8, 1),
    Sketcher.Constraint("Coincident", 8, 2, 9, 1),
    Sketcher.Constraint("Coincident", 9, 2, 10, 1),
    Sketcher.Constraint("Coincident", 10, 2, 11, 1),
    Sketcher.Constraint("Coincident", 11, 2, 6, 1),
    Sketcher.Constraint("Coincident", 12, 2, 13, 1),
    Sketcher.Constraint("Coincident", 13, 2, 14, 1),
    Sketcher.Constraint("Coincident", 14, 2, 15, 1),
    Sketcher.Constraint("Coincident", 15, 2, 16, 1),
    Sketcher.Constraint("Coincident", 16, 2, 17, 1),
    Sketcher.Constraint("Coincident", 17, 2, 12, 1),
    Sketcher.Constraint("Coincident", 18, 2, 19, 1),
    Sketcher.Constraint("Coincident", 19, 2, 20, 1),
    Sketcher.Constraint("Coincident", 20, 2, 21, 1),
    Sketcher.Constraint("Coincident", 21, 2, 22, 1),
    Sketcher.Constraint("Coincident", 22, 2, 23, 1),
    Sketcher.Constraint("Coincident", 23, 2, 18, 1),
    Sketcher.Constraint("Horizontal", 1),
    Sketcher.Constraint("Horizontal", 4),
    Sketcher.Constraint("Horizontal", 7),
    Sketcher.Constraint("Horizontal", 10),
    Sketcher.Constraint("Horizontal", 13),
    Sketcher.Constraint("Horizontal", 16),
    Sketcher.Constraint("Horizontal", 19),
    Sketcher.Constraint("Horizontal", 22),
    Sketcher.Constraint("Symmetric", 9, 2, 12, 2, -1, 1),
    Sketcher.Constraint("Symmetric", 11, 2, 14, 2, -1, 1),
    Sketcher.Constraint("Symmetric", 6, 2, 15, 2, -1, 1),
    Sketcher.Constraint("Symmetric", 8, 2, 17, 2, -1, 1),
    Sketcher.Constraint("Symmetric", 3, 2, 18, 2, -1, 1),
    Sketcher.Constraint("Symmetric", 5, 2, 20, 2, -1, 1),
    Sketcher.Constraint("Symmetric", 0, 2, 21, 2, -1, 1),
    Sketcher.Constraint("Symmetric", 2, 2, 23, 2, -1, 1),
    Sketcher.Constraint("Symmetric", 1, 2, 6, 2, -2),
    Sketcher.Constraint("Symmetric", 5, 2, 8, 2, -2),
    Sketcher.Constraint("Symmetric", 4, 2, 9, 2, -2),
    Sketcher.Constraint("Symmetric", 2, 2, 11, 2, -2),
    Sketcher.Constraint("Parallel", 0, 3),
    Sketcher.Constraint("Parallel", 2, 5),
    Sketcher.Constraint("Parallel", 3, 6),
    Sketcher.Constraint("Parallel", 5, 8),
    Sketcher.Constraint("Parallel", 8, 11),
    Sketcher.Constraint("Parallel", 11, 14),
    Sketcher.Constraint("Parallel", 14, 17),
    Sketcher.Constraint("Parallel", 17, 20),
    Sketcher.Constraint("Parallel", 20, 23),
    Sketcher.Constraint("Horizontal", 2, 2, 5, 2),
    Sketcher.Constraint("Vertical", 1, 2, 3, 2),
    Sketcher.Constraint("DistanceX", 1, 1, 1, 2, 3.0),
    Sketcher.Constraint("Angle", 0, Q("60 deg")),
    Sketcher.Constraint("Distance", 0, 3.0),
    Sketcher.Constraint("DistanceY", -1, 1, 2, 2, 65.0),
    Sketcher.Constraint("DistanceX", 6, 2, 5, 2, 136.0),
])
pocket10 = body.newObject("PartDesign::Pocket", "Pocket009")
pocket10.Profile = sketch19
pocket10.Length = 2
pocket10.Reversed = True

sketch20 = body.newObject("Sketcher::SketchObject", "Sketch019")
sketch20.AttachmentSupport = (doc.getObject("XY_Plane"), [""])
sketch20.MapMode = "FlatFace"
sketch20.addGeometry([
    Part.Circle(V(68.8, -65, 0), V(0, 0, 1), 1.6),
    Part.Circle(V(68.8, 65, 0), V(0, 0, 1), 1.6),
    Part.Circle(V(-68.8, -65, 0), V(0, 0, 1), 1.6),
    Part.Circle(V(-68.8, 65, 0), V(0, 0, 1), 1.6),
], False)
sketch20.addConstraint([
    Sketcher.Constraint("Equal", 0, 1),
    Sketcher.Constraint("Equal", 1, 2),
    Sketcher.Constraint("Equal", 2, 3),
    Sketcher.Constraint("Symmetric", 1, 3, 2, 3, -1, 1),
    Sketcher.Constraint("Symmetric", 0, 3, 3, 3, -1, 1),
    Sketcher.Constraint("Symmetric", 0, 3, 2, 3, -2),
    Sketcher.Constraint("Diameter", 0, 3.2),
    Sketcher.Constraint("DistanceY", 0, 3, -1, 1, 65.0),
    Sketcher.Constraint("DistanceX", 2, 3, 0, 3, 137.5),
])
pocket11 = body.newObject("PartDesign::Pocket", "Pocket010")
pocket11.Profile = sketch20
pocket11.Length = 7
pocket11.Reversed = True

sketch21 = body.newObject("Sketcher::SketchObject", "Sketch020")
sketch21.AttachmentSupport = (doc.getObject("XY_Plane"), [""])
sketch21.MapMode = "FlatFace"
sketch21.AttachmentOffset = App.Placement(V(0, 0, 7), App.Rotation())
sketch21.addGeometry([
    Part.Circle(V(-68.8, 65, 0), V(0, 0, 1), 3.1),
    Part.Circle(V(-68.8, -65, 0), V(0, 0, 1), 3.1),
    Part.Circle(V(68.8, -65, 0), V(0, 0, 1), 3.1),
    Part.Circle(V(68.8, 65, 0), V(0, 0, 1), 3.1),
], False)
sketch21.addConstraint([
    Sketcher.Constraint("Equal", 0, 1),
    Sketcher.Constraint("Equal", 1, 2),
    Sketcher.Constraint("Equal", 2, 3),
    Sketcher.Constraint("Symmetric", 0, 3, 2, 3, -1, 1),
    Sketcher.Constraint("Symmetric", 1, 3, 3, 3, -1, 1),
    Sketcher.Constraint("Symmetric", 1, 3, 2, 3, -2),
    Sketcher.Constraint("Diameter", 0, 6.2),
    Sketcher.Constraint("DistanceY", -1, 1, 0, 3, 65.0),
    Sketcher.Constraint("DistanceX", 1, 3, 2, 3, 137.5),
])
pocket12 = body.newObject("PartDesign::Pocket", "Pocket011")
pocket12.Profile = sketch21
pocket12.Length = 3.5

sketch22 = body.newObject("Sketcher::SketchObject", "Sketch021")
sketch22.AttachmentSupport = (doc.getObject("XY_Plane"), [""])
sketch22.MapMode = "FlatFace"
sketch22.addGeometry([
    Part.Circle(V(14.1, 66.2, 0), V(0, 0, 1), 2.5),
    Part.Circle(V(14.1, 54.2, 0), V(0, 0, 1), 2.5),
    Part.Circle(V(-9.9, 54.2, 0), V(0, 0, 1), 2.5),
    Part.Circle(V(-9.9, 66.2, 0), V(0, 0, 1), 2.5),
], False)
sketch22.addConstraint([
    Sketcher.Constraint("Equal", 0, 1),
    Sketcher.Constraint("Equal", 1, 2),
    Sketcher.Constraint("Equal", 2, 3),
    Sketcher.Constraint("Horizontal", 1, 3, 2, 3),
    Sketcher.Constraint("Horizontal", 0, 3, 3, 3),
    Sketcher.Constraint("Vertical", 0, 3, 1, 3),
    Sketcher.Constraint("Vertical", 2, 3, 3, 3),
    Sketcher.Constraint("Diameter", 0, 5.0),
    Sketcher.Constraint("DistanceY", 1, 3, 0, 3, 12.0),
    Sketcher.Constraint("DistanceX", 2, 3, 1, 3, 24.0),
    Sketcher.Constraint("DistanceX", -1, 1, 0, 3, 14.135003),
    Sketcher.Constraint("DistanceY", -1, 1, 0, 3, 66.177513),
])
pocket13 = body.newObject("PartDesign::Pocket", "Pocket012")
pocket13.Profile = sketch22
pocket13.Length = 4
pocket13.Reversed = True

doc.recompute()
